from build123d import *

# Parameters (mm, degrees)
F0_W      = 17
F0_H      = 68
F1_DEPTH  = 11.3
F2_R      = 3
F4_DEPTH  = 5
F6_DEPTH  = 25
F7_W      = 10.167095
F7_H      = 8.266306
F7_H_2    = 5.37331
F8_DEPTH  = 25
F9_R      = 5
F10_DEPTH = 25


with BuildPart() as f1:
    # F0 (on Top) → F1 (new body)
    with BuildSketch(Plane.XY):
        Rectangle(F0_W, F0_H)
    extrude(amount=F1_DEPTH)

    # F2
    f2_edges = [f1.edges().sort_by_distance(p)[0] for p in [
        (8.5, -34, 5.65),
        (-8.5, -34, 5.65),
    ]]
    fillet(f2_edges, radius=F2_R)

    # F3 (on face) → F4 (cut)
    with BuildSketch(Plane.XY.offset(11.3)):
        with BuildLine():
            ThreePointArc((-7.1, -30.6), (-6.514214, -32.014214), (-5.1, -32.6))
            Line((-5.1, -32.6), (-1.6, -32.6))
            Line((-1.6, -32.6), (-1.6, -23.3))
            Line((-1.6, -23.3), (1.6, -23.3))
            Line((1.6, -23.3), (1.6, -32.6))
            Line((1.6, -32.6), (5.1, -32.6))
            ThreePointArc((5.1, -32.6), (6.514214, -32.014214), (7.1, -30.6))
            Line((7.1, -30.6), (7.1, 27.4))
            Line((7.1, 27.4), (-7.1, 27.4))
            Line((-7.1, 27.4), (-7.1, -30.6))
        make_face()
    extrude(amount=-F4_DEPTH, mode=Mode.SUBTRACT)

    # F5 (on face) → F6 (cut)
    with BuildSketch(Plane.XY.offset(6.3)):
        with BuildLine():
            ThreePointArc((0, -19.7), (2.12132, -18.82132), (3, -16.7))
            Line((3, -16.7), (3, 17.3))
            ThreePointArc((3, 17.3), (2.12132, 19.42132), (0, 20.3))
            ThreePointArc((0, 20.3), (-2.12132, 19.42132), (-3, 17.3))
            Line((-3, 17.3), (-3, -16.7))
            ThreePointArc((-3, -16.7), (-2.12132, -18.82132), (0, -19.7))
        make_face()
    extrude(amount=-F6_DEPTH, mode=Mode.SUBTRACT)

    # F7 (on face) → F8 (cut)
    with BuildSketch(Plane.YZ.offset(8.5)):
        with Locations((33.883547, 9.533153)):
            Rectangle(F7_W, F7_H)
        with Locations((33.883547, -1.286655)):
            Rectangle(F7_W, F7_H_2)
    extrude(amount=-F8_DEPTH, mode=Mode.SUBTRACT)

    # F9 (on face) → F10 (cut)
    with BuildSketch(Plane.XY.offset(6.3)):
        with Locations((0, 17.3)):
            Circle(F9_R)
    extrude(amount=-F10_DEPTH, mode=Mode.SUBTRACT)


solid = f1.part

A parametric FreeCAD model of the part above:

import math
import FreeCAD as App
import Part
import Sketcher
from FreeCAD import Vector
Q = App.Units.Quantity


def edges_at(feature, points):
    """Names of the edges that pass closest to the given points."""
    edges = feature.Shape.Edges
    near = lambda p: min(range(len(edges)), key=lambda i: edges[i].distToShape(Part.Vertex(*p))[0])
    return sorted({f"Edge{near(p) + 1}" for p in points})


def add_polygon(sketch, points):
    """Adds a closed chain of lines whose ends are joined by coincident constraints."""
    first, n = sketch.GeometryCount, len(points)
    for a, b in zip(points, points[1:] + points[:1]):
        sketch.addGeometry(Part.LineSegment(App.Vector(*a, 0), App.Vector(*b, 0)), False)
    for i in range(n):
        sketch.addConstraint(Sketcher.Constraint("Coincident", first + i, 2, first + (i + 1) % n, 1))

doc = App.newDocument("Part")
body = doc.addObject("PartDesign::Body", "Body")

sketch1 = body.newObject("Sketcher::SketchObject", "Sketch")
sketch1.AttachmentSupport = (doc.getObject("XY_Plane"), [""])
sketch1.MapMode = "FlatFace"
add_polygon(sketch1, [(-8.5, 34), (-8.5, -34), (8.5, -34), (8.5, 34)])
sketch1.addConstraint(Sketcher.Constraint("Vertical", 0))
sketch1.addConstraint(Sketcher.Constraint("Horizontal", 1))
sketch1.addConstraint(Sketcher.Constraint("Vertical", 2))
sketch1.addConstraint(Sketcher.Constraint("Horizontal", 3))
sketch1.addConstraint(Sketcher.Constraint("Symmetric", 0, 2, 2, 2, -1, 1))
sketch1.addConstraint(Sketcher.Constraint("DistanceX", 1, 1, 1, 2, Q("17 mm")))
sketch1.addConstraint(Sketcher.Constraint("DistanceY", 0, 2, 0, 1, Q("68 mm")))
pad1 = body.newObject("PartDesign::Pad", "Pad")
pad1.Profile = sketch1
pad1.Length = 11.3
doc.recompute()

fillet = body.newObject("PartDesign::Fillet", "Fillet")
fillet.Base = (pad1, edges_at(pad1, [(8.5, -34, 5.65), (-8.5, -34, 5.65)]))
fillet.Radius = 3

sketch2 = body.newObject("Sketcher::SketchObject", "Sketch001")
sketch2.AttachmentSupport = (doc.getObject("XY_Plane"), [""])
sketch2.MapMode = "FlatFace"
sketch2.AttachmentOffset = App.Placement(Vector(0, 0, 11.3), App.Rotation())
sketch2.addGeometry(Part.ArcOfCircle(Part.Circle(Vector(-5.100001, -30.600001, 0), Vector(0, 0, 1), 1.999999), math.radians(179.999957), math.radians(270.000043)), False)
sketch2.addGeometry(Part.LineSegment(Vector(-5.1, -32.6, 0), Vector(-1.6, -32.6, 0)), False)
sketch2.addGeometry(Part.LineSegment(Vector(-1.6, -32.6, 0), Vector(-1.6, -23.3, 0)), False)
sketch2.addGeometry(Part.LineSegment(Vector(-1.6, -23.3, 0), Vector(1.6, -23.3, 0)), False)
sketch2.addGeometry(Part.LineSegment(Vector(1.6, -23.3, 0), Vector(1.6, -32.6, 0)), False)
sketch2.addGeometry(Part.LineSegment(Vector(1.6, -32.6, 0), Vector(5.1, -32.6, 0)), False)
sketch2.addGeometry(Part.ArcOfCircle(Part.Circle(Vector(5.100001, -30.600001, 0), Vector(0, 0, 1), 1.999999), math.radians(-90.000043), math.radians(0.000043)), False)
sketch2.addGeometry(Part.LineSegment(Vector(7.1, -30.6, 0), Vector(7.1, 27.4, 0)), False)
sketch2.addGeometry(Part.LineSegment(Vector(7.1, 27.4, 0), Vector(-7.1, 27.4, 0)), False)
sketch2.addGeometry(Part.LineSegment(Vector(-7.1, 27.4, 0), Vector(-7.1, -30.6, 0)), False)
sketch2.addConstraint(Sketcher.Constraint("Tangent", 0, 2, 1, 1))
sketch2.addConstraint(Sketcher.Constraint("Coincident", 1, 2, 2, 1))
sketch2.addConstraint(Sketcher.Constraint("Coincident", 2, 2, 3, 1))
sketch2.addConstraint(Sketcher.Constraint("Coincident", 3, 2, 4, 1))
sketch2.addConstraint(Sketcher.Constraint("Coincident", 4, 2, 5, 1))
sketch2.addConstraint(Sketcher.Constraint("Tangent", 5, 2, 6, 1))
sketch2.addConstraint(Sketcher.Constraint("Tangent", 6, 2, 7, 1))
sketch2.addConstraint(Sketcher.Constraint("Coincident", 7, 2, 8, 1))
sketch2.addConstraint(Sketcher.Constraint("Coincident", 8, 2, 9, 1))
sketch2.addConstraint(Sketcher.Constraint("Tangent", 9, 2, 0, 1))
sketch2.addConstraint(Sketcher.Constraint("Horizontal", 1))
sketch2.addConstraint(Sketcher.Constraint("Vertical", 2))
sketch2.addConstraint(Sketcher.Constraint("Horizontal", 3))
sketch2.addConstraint(Sketcher.Constraint("Vertical", 4))
sketch2.addConstraint(Sketcher.Constraint("Horizontal", 5))
sketch2.addConstraint(Sketcher.Constraint("Vertical", 7))
sketch2.addConstraint(Sketcher.Constraint("Horizontal", 8))
sketch2.addConstraint(Sketcher.Constraint("Vertical", 9))
sketch2.addConstraint(Sketcher.Constraint("Equal", 0, 6))
sketch2.addConstraint(Sketcher.Constraint("Symmetric", 0, 3, 6, 3, -2))
sketch2.addConstraint(Sketcher.Constraint("Equal", 1, 5))
sketch2.addConstraint(Sketcher.Constraint("Radius", 0, Q("1.999999 mm")))
sketch2.addConstraint(Sketcher.Constraint("DistanceY", 7, 1, 7, 2, Q("58 mm")))
sketch2.addConstraint(Sketcher.Constraint("DistanceX", 1, 1, 1, 2, Q("3.5 mm")))
sketch2.addConstraint(Sketcher.Constraint("DistanceX", 3, 1, 3, 2, Q("3.2 mm")))
sketch2.addConstraint(Sketcher.Constraint("DistanceY", 2, 1, 2, 2, Q("9.3 mm")))
sketch2.addConstraint(Sketcher.Constraint("DistanceY", 0, 3, -1, 1, Q("30.600001 mm")))
pocket1 = body.newObject("PartDesign::Pocket", "Pocket")
pocket1.Profile = sketch2
pocket1.Length = 5

sketch3 = body.newObject("Sketcher::SketchObject", "Sketch002")
sketch3.AttachmentSupport = (doc.getObject("XY_Plane"), [""])
sketch3.MapMode = "FlatFace"
sketch3.AttachmentOffset = App.Placement(Vector(0, 0, 6.3), App.Rotation())
sketch3.addGeometry(Part.ArcOfCircle(Part.Circle(Vector(-0.000001, -16.699999, 0), Vector(0, 0, 1), 3.000001), math.radians(-89.999978), math.radians(-0.000022)), False)
sketch3.addGeometry(Part.LineSegment(Vector(3, -16.7, 0), Vector(3, 17.3, 0)), False)
sketch3.addGeometry(Part.ArcOfCircle(Part.Circle(Vector(-0.000001, 17.299999, 0), Vector(0, 0, 1), 3.000001), math.radians(0.000022), math.radians(89.999978)), False)
sketch3.addGeometry(Part.ArcOfCircle(Part.Circle(Vector(0.000001, 17.299999, 0), Vector(0, 0, 1), 3.000001), math.radians(90.000022), math.radians(179.999978)), False)
sketch3.addGeometry(Part.LineSegment(Vector(-3, 17.3, 0), Vector(-3, -16.7, 0)), False)
sketch3.addGeometry(Part.ArcOfCircle(Part.Circle(Vector(0.000001, -16.699999, 0), Vector(0, 0, 1), 3.000001), math.radians(-179.999978), math.radians(-90.000022)), False)
sketch3.addConstraint(Sketcher.Constraint("Tangent", 0, 2, 1, 1))
sketch3.addConstraint(Sketcher.Constraint("Tangent", 1, 2, 2, 1))
sketch3.addConstraint(Sketcher.Constraint("Tangent", 2, 2, 3, 1))
sketch3.addConstraint(Sketcher.Constraint("Tangent", 3, 2, 4, 1))
sketch3.addConstraint(Sketcher.Constraint("Tangent", 4, 2, 5, 1))
sketch3.addConstraint(Sketcher.Constraint("Tangent", 5, 2, 0, 1))
sketch3.addConstraint(Sketcher.Constraint("Vertical", 1))
sketch3.addConstraint(Sketcher.Constraint("Vertical", 4))
sketch3.addConstraint(Sketcher.Constraint("Equal", 0, 2))
sketch3.addConstraint(Sketcher.Constraint("Equal", 2, 3))
sketch3.addConstraint(Sketcher.Constraint("PointOnObject", 0, 3, -2))
sketch3.addConstraint(Sketcher.Constraint("PointOnObject", 2, 2, -2))
sketch3.addConstraint(Sketcher.Constraint("PointOnObject", 5, 2, -2))
sketch3.addConstraint(Sketcher.Constraint("Radius", 0, Q("3.000001 mm")))
sketch3.addConstraint(Sketcher.Constraint("DistanceY", 1, 1, 1, 2, Q("34 mm")))
sketch3.addConstraint(Sketcher.Constraint("DistanceY", 0, 3, -1, 1, Q("16.699999 mm")))
pocket2 = body.newObject("PartDesign::Pocket", "Pocket001")
pocket2.Profile = sketch3
pocket2.Length = 25

sketch4 = body.newObject("Sketcher::SketchObject", "Sketch003")
sketch4.AttachmentSupport = (doc.getObject("YZ_Plane"), [""])
sketch4.MapMode = "FlatFace"
sketch4.AttachmentOffset = App.Placement(Vector(0, 0, 8.5), App.Rotation())
add_polygon(sketch4, [(28.799999, 13.666306), (28.799999, 5.4), (38.967095, 5.4), (38.967095, 13.666306)])
add_polygon(sketch4, [(28.799999, 1.4), (28.799999, -3.97331), (38.967095, -3.97331), (38.967095, 1.4)])
sketch4.addConstraint(Sketcher.Constraint("Vertical", 0))
sketch4.addConstraint(Sketcher.Constraint("Horizontal", 1))
sketch4.addConstraint(Sketcher.Constraint("Vertical", 2))
sketch4.addConstraint(Sketcher.Constraint("Horizontal", 3))
sketch4.addConstraint(Sketcher.Constraint("Vertical", 4))
sketch4.addConstraint(Sketcher.Constraint("Horizontal", 5))
sketch4.addConstraint(Sketcher.Constraint("Vertical", 6))
sketch4.addConstraint(Sketcher.Constraint("Horizontal", 7))
sketch4.addConstraint(Sketcher.Constraint("Vertical", 3, 2, 4, 2))
sketch4.addConstraint(Sketcher.Constraint("Vertical", 2, 2, 5, 2))
sketch4.addConstraint(Sketcher.Constraint("DistanceY", 6, 2, 1, 2, Q("4 mm")))
sketch4.addConstraint(Sketcher.Constraint("DistanceX", -1, 1, 0, 2, Q("28.799999 mm")))
sketch4.addConstraint(Sketcher.Constraint("DistanceY", -1, 1, 0, 2, Q("5.4 mm")))
sketch4.addConstraint(Sketcher.Constraint("DistanceY", 4, 2, 4, 1, Q("5.37331 mm")))
sketch4.addConstraint(Sketcher.Constraint("DistanceX", 1, 1, 1, 2, Q("10.167095 mm")))
sketch4.addConstraint(Sketcher.Constraint("DistanceY", 0, 2, 0, 1, Q("8.266306 mm")))
pocket3 = body.newObject("PartDesign::Pocket", "Pocket002")
pocket3.Profile = sketch4
pocket3.Length = 25

sketch5 = body.newObject("Sketcher::SketchObject", "Sketch004")
sketch5.AttachmentSupport = (doc.getObject("XY_Plane"), [""])
sketch5.MapMode = "FlatFace"
sketch5.AttachmentOffset = App.Placement(Vector(0, 0, 6.3), App.Rotation())
sketch5.addGeometry(Part.Circle(Vector(0, 17.3, 0), Vector(0, 0, 1), 5), False)
sketch5.addConstraint(Sketcher.Constraint("PointOnObject", 0, 3, -2))
sketch5.addConstraint(Sketcher.Constraint("Diameter", 0, Q("10 mm")))
sketch5.addConstraint(Sketcher.Constraint("DistanceY", -1, 1, 0, 3, Q("17.3 mm")))
pocket4 = body.newObject("PartDesign::Pocket", "Pocket003")
pocket4.Profile = sketch5
pocket4.Length = 25

doc.recompute()
